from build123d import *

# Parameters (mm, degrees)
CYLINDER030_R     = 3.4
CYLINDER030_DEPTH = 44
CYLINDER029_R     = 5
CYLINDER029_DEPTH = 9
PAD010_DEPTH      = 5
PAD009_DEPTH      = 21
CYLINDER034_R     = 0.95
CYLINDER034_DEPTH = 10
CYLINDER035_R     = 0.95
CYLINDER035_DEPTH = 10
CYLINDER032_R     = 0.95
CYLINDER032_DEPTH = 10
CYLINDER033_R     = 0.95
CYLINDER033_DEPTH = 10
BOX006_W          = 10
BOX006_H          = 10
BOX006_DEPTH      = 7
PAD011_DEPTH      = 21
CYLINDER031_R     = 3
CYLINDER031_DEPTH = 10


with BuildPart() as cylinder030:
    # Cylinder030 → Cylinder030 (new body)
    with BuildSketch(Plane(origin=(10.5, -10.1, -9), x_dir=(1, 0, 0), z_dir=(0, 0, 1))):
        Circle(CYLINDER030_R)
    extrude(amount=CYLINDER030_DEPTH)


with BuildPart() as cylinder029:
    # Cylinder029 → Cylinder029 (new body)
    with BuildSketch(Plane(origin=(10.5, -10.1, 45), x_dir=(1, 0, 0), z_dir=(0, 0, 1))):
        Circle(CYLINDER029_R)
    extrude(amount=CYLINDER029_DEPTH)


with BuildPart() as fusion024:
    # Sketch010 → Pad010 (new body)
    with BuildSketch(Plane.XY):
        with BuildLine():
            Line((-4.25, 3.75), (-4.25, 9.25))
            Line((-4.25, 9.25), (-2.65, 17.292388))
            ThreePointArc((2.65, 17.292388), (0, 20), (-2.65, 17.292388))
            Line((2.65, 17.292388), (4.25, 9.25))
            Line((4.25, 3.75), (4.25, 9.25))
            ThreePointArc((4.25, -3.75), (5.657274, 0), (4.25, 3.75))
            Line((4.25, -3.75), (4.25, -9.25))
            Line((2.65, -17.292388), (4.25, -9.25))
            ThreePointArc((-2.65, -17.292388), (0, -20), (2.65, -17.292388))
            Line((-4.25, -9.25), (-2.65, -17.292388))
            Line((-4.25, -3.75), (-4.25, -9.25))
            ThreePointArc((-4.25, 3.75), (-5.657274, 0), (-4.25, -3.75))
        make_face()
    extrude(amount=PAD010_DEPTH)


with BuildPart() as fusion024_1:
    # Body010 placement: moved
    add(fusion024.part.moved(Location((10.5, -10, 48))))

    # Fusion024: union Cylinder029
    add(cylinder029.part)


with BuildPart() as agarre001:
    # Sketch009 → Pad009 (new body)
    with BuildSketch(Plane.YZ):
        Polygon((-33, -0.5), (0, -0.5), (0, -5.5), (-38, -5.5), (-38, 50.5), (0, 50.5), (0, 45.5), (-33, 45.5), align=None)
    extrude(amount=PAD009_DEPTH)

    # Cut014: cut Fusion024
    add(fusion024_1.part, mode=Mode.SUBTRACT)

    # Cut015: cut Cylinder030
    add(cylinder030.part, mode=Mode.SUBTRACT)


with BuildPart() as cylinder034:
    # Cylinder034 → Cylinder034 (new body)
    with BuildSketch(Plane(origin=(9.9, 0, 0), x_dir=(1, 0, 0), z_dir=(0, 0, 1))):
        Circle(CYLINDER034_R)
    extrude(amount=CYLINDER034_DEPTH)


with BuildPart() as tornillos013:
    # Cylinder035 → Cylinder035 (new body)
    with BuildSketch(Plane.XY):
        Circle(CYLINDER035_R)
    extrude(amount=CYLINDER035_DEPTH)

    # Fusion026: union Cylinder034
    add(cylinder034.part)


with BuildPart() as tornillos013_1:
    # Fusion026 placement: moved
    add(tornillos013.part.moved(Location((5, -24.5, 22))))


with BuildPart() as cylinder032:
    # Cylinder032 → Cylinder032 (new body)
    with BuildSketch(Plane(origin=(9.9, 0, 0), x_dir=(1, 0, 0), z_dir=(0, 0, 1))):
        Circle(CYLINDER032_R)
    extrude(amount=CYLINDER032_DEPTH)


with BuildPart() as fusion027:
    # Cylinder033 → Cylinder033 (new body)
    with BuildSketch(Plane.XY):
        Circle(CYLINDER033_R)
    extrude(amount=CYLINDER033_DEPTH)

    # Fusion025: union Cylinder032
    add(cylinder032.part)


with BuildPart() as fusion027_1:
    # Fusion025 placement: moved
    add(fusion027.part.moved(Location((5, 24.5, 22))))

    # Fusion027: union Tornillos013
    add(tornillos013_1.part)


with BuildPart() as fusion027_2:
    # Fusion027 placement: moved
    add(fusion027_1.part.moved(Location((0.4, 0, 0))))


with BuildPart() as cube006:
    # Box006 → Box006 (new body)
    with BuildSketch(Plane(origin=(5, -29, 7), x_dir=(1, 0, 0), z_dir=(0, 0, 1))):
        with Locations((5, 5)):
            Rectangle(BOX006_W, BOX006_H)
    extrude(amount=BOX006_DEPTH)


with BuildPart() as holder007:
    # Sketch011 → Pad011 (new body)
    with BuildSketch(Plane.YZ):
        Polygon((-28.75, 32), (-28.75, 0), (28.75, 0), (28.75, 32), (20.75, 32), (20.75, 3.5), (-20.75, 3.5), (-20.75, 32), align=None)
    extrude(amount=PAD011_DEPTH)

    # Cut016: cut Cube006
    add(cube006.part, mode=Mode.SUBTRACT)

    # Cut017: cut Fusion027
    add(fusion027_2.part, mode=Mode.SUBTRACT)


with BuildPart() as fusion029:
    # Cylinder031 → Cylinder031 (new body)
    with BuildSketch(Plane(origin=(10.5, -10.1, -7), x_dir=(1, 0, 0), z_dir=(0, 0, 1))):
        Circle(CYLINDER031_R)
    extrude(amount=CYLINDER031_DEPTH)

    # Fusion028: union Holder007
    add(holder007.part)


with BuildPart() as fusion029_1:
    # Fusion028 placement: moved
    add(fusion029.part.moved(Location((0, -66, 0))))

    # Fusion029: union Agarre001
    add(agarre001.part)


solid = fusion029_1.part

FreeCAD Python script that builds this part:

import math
import FreeCAD as App
import Part
import Sketcher


def add_polygon(sketch, points):
    """Adds a closed chain of lines whose ends are joined by coincident constraints."""
    first, n = sketch.GeometryCount, len(points)
    for a, b in zip(points, points[1:] + points[:1]):
        sketch.addGeometry(Part.LineSegment(App.Vector(*a, 0), App.Vector(*b, 0)), False)
    for i in range(n):
        sketch.addConstraint(Sketcher.Constraint("Coincident", first + i, 2, first + (i + 1) % n, 1))

doc = App.newDocument("Part")
params = doc.addObject("Spreadsheet::Sheet", "Params")
for row, (alias, value) in enumerate([
    ("sketch1_diameter", "6.8 mm"),
    ("pad1_length", "44 mm"),
    ("sketch2_diameter", "10 mm"),
    ("pad2_length", "9 mm"),
    ("sketch3_radius", "5.699999 mm"),
    ("sketch3_height", "5.5 mm"),
    ("sketch3_length", "8.2 mm"),
    ("pad3_length", "5 mm"),
    ("sketch4_width", "33 mm"),
    ("sketch4_width2", "38 mm"),
    ("sketch4_height", "46 mm"),
    ("sketch4_height2", "5 mm"),
    ("pad4_length", "21 mm"),
    ("sketch5_diameter", "1.9 mm"),
    ("pad5_length", "10 mm"),
    ("sketch6_diameter", "1.9 mm"),
    ("pad6_length", "10 mm"),
    ("sketch7_diameter", "1.9 mm"),
    ("pad7_length", "10 mm"),
    ("sketch8_diameter", "1.9 mm"),
    ("pad8_length", "10 mm"),
    ("sketch9_width", "10 mm"),
    ("pad9_length", "7 mm"),
    ("sketch10_width", "8 mm"),
    ("sketch10_height", "32 mm"),
    ("sketch10_width2", "57.5 mm"),
    ("sketch10_height2", "28.5 mm"),
    ("pad10_length", "21 mm"),
    ("sketch11_diameter", "6 mm"),
    ("pad11_length", "10 mm"),
], start=1):
    params.set(f"A{row}", alias)
    params.set(f"B{row}", "=" + value)
    params.setAlias(f"B{row}", alias)

body = doc.addObject("PartDesign::Body", "Body")

# Sketch on XY plane
sketch1 = body.newObject("Sketcher::SketchObject", "Sketch")
sketch1.AttachmentSupport = (doc.getObject("XY_Plane"), [""])
sketch1.MapMode = "FlatFace"
sketch1.AttachmentOffset = App.Placement(App.Vector(0, 0, -9), App.Rotation())
sketch1.addGeometry(Part.Circle(App.Vector(10.5, -10.1, 0), App.Vector(0, 0, 1), 3.4), False)
sketch1.addConstraint(Sketcher.Constraint("Diameter", 0, 6.8))
sketch1.addConstraint(Sketcher.Constraint("DistanceX", -1, 1, 0, 3, 10.5))
sketch1.addConstraint(Sketcher.Constraint("DistanceY", 0, 3, -1, 1, 10.1))
sketch1.setExpression("Constraints[0]", "Params.sketch1_diameter")
pad1 = body.newObject("PartDesign::Pad", "Pad")
pad1.Profile = sketch1
pad1.setExpression("Length", "Params.pad1_length")
body2 = doc.addObject("PartDesign::Body", "Body001")

# Sketch on XY plane
sketch2 = body2.newObject("Sketcher::SketchObject", "Sketch001")
sketch2.AttachmentSupport = (doc.getObject("XY_Plane001"), [""])
sketch2.MapMode = "FlatFace"
sketch2.AttachmentOffset = App.Placement(App.Vector(0, 0, 45), App.Rotation())
sketch2.addGeometry(Part.Circle(App.Vector(10, -10, 0), App.Vector(0, 0, 1), 5), False)
sketch2.addConstraint(Sketcher.Constraint("Diameter", 0, 10.0))
sketch2.addConstraint(Sketcher.Constraint("DistanceX", -1, 1, 0, 3, 10.5))
sketch2.addConstraint(Sketcher.Constraint("DistanceY", 0, 3, -1, 1, 10.1))
sketch2.setExpression("Constraints[0]", "Params.sketch2_diameter")
pad2 = body2.newObject("PartDesign::Pad", "Pad001")
pad2.Profile = sketch2
pad2.setExpression("Length", "Params.pad2_length")
body3 = doc.addObject("PartDesign::Body", "Body002")

# Sketch on XY plane
sketch3 = body3.newObject("Sketcher::SketchObject", "Sketch002")
sketch3.AttachmentSupport = (doc.getObject("XY_Plane002"), [""])
sketch3.MapMode = "FlatFace"
sketch3.addGeometry(Part.LineSegment(App.Vector(-4.2, 9.2, 0), App.Vector(-4.2, 3.8, 0)), False)
sketch3.addGeometry(Part.ArcOfCircle(Part.Circle(App.Vector(0, 0, 0), App.Vector(0, 0, 1), 5.7), math.radians(139), math.radians(221)), False)
sketch3.addGeometry(Part.LineSegment(App.Vector(-4.2, -3.8, 0), App.Vector(-4.2, -9.2, 0)), False)
sketch3.addGeometry(Part.LineSegment(App.Vector(-4.2, -9.2, 0), App.Vector(-2.6, -17.3, 0)), False)
sketch3.addGeometry(Part.ArcOfCircle(Part.Circle(App.Vector(0, -17.3, 0), App.Vector(0, 0, 1), 2.7), math.radians(179), math.radians(361)), False)
sketch3.addGeometry(Part.LineSegment(App.Vector(2.6, -17.3, 0), App.Vector(4.2, -9.2, 0)), False)
sketch3.addGeometry(Part.LineSegment(App.Vector(4.2, -9.2, 0), App.Vector(4.2, -3.8, 0)), False)
sketch3.addGeometry(Part.ArcOfCircle(Part.Circle(App.Vector(0, 0, 0), App.Vector(0, 0, 1), 5.7), math.radians(-41), math.radians(41)), False)
sketch3.addGeometry(Part.LineSegment(App.Vector(4.2, 3.8, 0), App.Vector(4.2, 9.2, 0)), False)
sketch3.addGeometry(Part.LineSegment(App.Vector(4.2, 9.2, 0), App.Vector(2.6, 17.3, 0)), False)
sketch3.addGeometry(Part.ArcOfCircle(Part.Circle(App.Vector(0, 17.3, 0), App.Vector(0, 0, 1), 2.7), math.radians(-1), math.radians(181)), False)
sketch3.addGeometry(Part.LineSegment(App.Vector(-2.6, 17.3, 0), App.Vector(-4.2, 9.2, 0)), False)
sketch3.addConstraint(Sketcher.Constraint("Coincident", 0, 2, 1, 1))
sketch3.addConstraint(Sketcher.Constraint("Coincident", 1, 2, 2, 1))
sketch3.addConstraint(Sketcher.Constraint("Coincident", 2, 2, 3, 1))
sketch3.addConstraint(Sketcher.Constraint("Coincident", 3, 2, 4, 1))
sketch3.addConstraint(Sketcher.Constraint("Coincident", 4, 2, 5, 1))
sketch3.addConstraint(Sketcher.Constraint("Coincident", 5, 2, 6, 1))
sketch3.addConstraint(Sketcher.Constraint("Coincident", 6, 2, 7, 1))
sketch3.addConstraint(Sketcher.Constraint("Coincident", 7, 2, 8, 1))
sketch3.addConstraint(Sketcher.Constraint("Coincident", 8, 2, 9, 1))
sketch3.addConstraint(Sketcher.Constraint("Coincident", 9, 2, 10, 1))
sketch3.addConstraint(Sketcher.Constraint("Coincident", 10, 2, 11, 1))
sketch3.addConstraint(Sketcher.Constraint("Coincident", 11, 2, 0, 1))
sketch3.addConstraint(Sketcher.Constraint("Vertical", 0))
sketch3.addConstraint(Sketcher.Constraint("Vertical", 2))
sketch3.addConstraint(Sketcher.Constraint("Vertical", 6))
sketch3.addConstraint(Sketcher.Constraint("Vertical", 8))
sketch3.addConstraint(Sketcher.Constraint("Equal", 1, 7))
sketch3.addConstraint(Sketcher.Constraint("Equal", 4, 10))
sketch3.addConstraint(Sketcher.Constraint("Symmetric", 1, 3, 7, 3, -1, 1))
sketch3.addConstraint(Sketcher.Constraint("Symmetric", 4, 3, 10, 3, -1, 1))
sketch3.addConstraint(Sketcher.Constraint("Symmetric", 2, 2, 8, 2, -1, 1))
sketch3.addConstraint(Sketcher.Constraint("Symmetric", 5, 2, 11, 2, -1, 1))
sketch3.addConstraint(Sketcher.Constraint("Symmetric", 3, 2, 4, 2, -2))
sketch3.addConstraint(Sketcher.Constraint("Symmetric", 2, 2, 5, 2, -2))
sketch3.addConstraint(Sketcher.Constraint("PointOnObject", 1, 3, -1))
sketch3.addConstraint(Sketcher.Constraint("Parallel", 3, 9))
sketch3.addConstraint(Sketcher.Constraint("Parallel", 5, 11))
sketch3.addConstraint(Sketcher.Constraint("Radius", 1, 5.699999))
sketch3.addConstraint(Sketcher.Constraint("DistanceY", 0, 2, 0, 1, 5.5))
sketch3.addConstraint(Sketcher.Constraint("DistanceY", 2, 2, 0, 2, 13.0))
sketch3.addConstraint(Sketcher.Constraint("Distance", 3, 8.2))
sketch3.addConstraint(Sketcher.Constraint("DistanceX", 2, 2, 3, 2, 1.6))
sketch3.addConstraint(Sketcher.Constraint("DistanceX", 3, 2, 4, 2, 5.3))
sketch3.addConstraint(Sketcher.Constraint("Radius", 4, 2.650613))
sketch3.setExpression("Constraints[27]", "Params.sketch3_radius")
sketch3.setExpression("Constraints[28]", "Params.sketch3_height")
sketch3.setExpression("Constraints[30]", "Params.sketch3_length")
pad3 = body3.newObject("PartDesign::Pad", "Pad002")
pad3.Profile = sketch3
pad3.setExpression("Length", "Params.pad3_length")
body4 = doc.addObject("PartDesign::Body", "Body003")
doc.recompute()

body3.Placement = App.Placement(App.Vector(10.5, -10, 48), App.Rotation(App.Vector(0, 0, 1), 0))
boolean = body4.newObject("PartDesign::Boolean", "Boolean")
boolean.Type = "Fuse"
boolean.addObjects([body3])
doc.recompute()

boolean2 = body4.newObject("PartDesign::Boolean", "Boolean001")
boolean2.Type = "Fuse"
boolean2.addObjects([body2])
body5 = doc.addObject("PartDesign::Body", "Body004")

# Sketch on YZ plane
sketch4 = body5.newObject("Sketcher::SketchObject", "Sketch003")
sketch4.AttachmentSupport = (doc.getObject("YZ_Plane004"), [""])
sketch4.MapMode = "FlatFace"
add_polygon(sketch4, [(0, 0), (-33, 0), (-33, 46), (0, 46), (0, 50), (-38, 50), (-38, -6), (0, -6)])  # lines 0-7
sketch4.addConstraint(Sketcher.Constraint("Horizontal", 0))
sketch4.addConstraint(Sketcher.Constraint("Vertical", 1))
sketch4.addConstraint(Sketcher.Constraint("Horizontal", 2))
sketch4.addConstraint(Sketcher.Constraint("Vertical", 3))
sketch4.addConstraint(Sketcher.Constraint("Horizontal", 4))
sketch4.addConstraint(Sketcher.Constraint("Vertical", 5))
sketch4.addConstraint(Sketcher.Constraint("Horizontal", 6))
sketch4.addConstraint(Sketcher.Constraint("Vertical", 7))
sketch4.addConstraint(Sketcher.Constraint("PointOnObject", 2, 2, -2))
sketch4.addConstraint(Sketcher.Constraint("PointOnObject", 6, 2, -2))
sketch4.addConstraint(Sketcher.Constraint("Equal", 3, 7))
sketch4.addConstraint(Sketcher.Constraint("DistanceX", 0, 2, 0, 1, 33.0))
sketch4.addConstraint(Sketcher.Constraint("DistanceX", 4, 2, 4, 1, 38.0))
sketch4.addConstraint(Sketcher.Constraint("DistanceY", 1, 1, 1, 2, 46.0))
sketch4.addConstraint(Sketcher.Constraint("DistanceY", 3, 1, 3, 2, 5.0))
sketch4.addConstraint(Sketcher.Constraint("DistanceY", 0, 2, -1, 1, 0.5))
sketch4.setExpression("Constraints[19]", "Params.sketch4_width")
sketch4.setExpression("Constraints[20]", "Params.sketch4_width2")
sketch4.setExpression("Constraints[21]", "Params.sketch4_height")
sketch4.setExpression("Constraints[22]", "Params.sketch4_height2")
pad4 = body5.newObject("PartDesign::Pad", "Pad003")
pad4.Profile = sketch4
pad4.setExpression("Length", "Params.pad4_length")
doc.recompute()

boolean3 = body5.newObject("PartDesign::Boolean", "Boolean002")
boolean3.Type = "Cut"
boolean3.addObjects([body4])
doc.recompute()

boolean4 = body5.newObject("PartDesign::Boolean", "Boolean003")
boolean4.Type = "Cut"
boolean4.addObjects([body])
body6 = doc.addObject("PartDesign::Body", "Body005")

# Sketch on XY plane
sketch5 = body6.newObject("Sketcher::SketchObject", "Sketch004")
sketch5.AttachmentSupport = (doc.getObject("XY_Plane005"), [""])
sketch5.MapMode = "FlatFace"
sketch5.addGeometry(Part.Circle(App.Vector(9.9, 0, 0), App.Vector(0, 0, 1), 0.9), False)
sketch5.addConstraint(Sketcher.Constraint("PointOnObject", 0, 3, -1))
sketch5.addConstraint(Sketcher.Constraint("Diameter", 0, 1.9))
sketch5.addConstraint(Sketcher.Constraint("DistanceX", -1, 1, 0, 3, 9.9))
sketch5.setExpression("Constraints[1]", "Params.sketch5_diameter")
pad5 = body6.newObject("PartDesign::Pad", "Pad004")
pad5.Profile = sketch5
pad5.setExpression("Length", "Params.pad5_length")
body7 = doc.addObject("PartDesign::Body", "Body006")
body7.AllowCompound = True

# Sketch on XY plane
sketch6 = body7.newObject("Sketcher::SketchObject", "Sketch005")
sketch6.AttachmentSupport = (doc.getObject("XY_Plane006"), [""])
sketch6.MapMode = "FlatFace"
sketch6.addGeometry(Part.Circle(App.Vector(0, 0, 0), App.Vector(0, 0, 1), 0.9), False)
sketch6.addConstraint(Sketcher.Constraint("Coincident", 0, 3, -1, 1))
sketch6.addConstraint(Sketcher.Constraint("Diameter", 0, 1.9))
sketch6.setExpression("Constraints[1]", "Params.sketch6_diameter")
pad6 = body7.newObject("PartDesign::Pad", "Pad005")
pad6.Profile = sketch6
pad6.setExpression("Length", "Params.pad6_length")
doc.recompute()

boolean5 = body7.newObject("PartDesign::Boolean", "Boolean004")
boolean5.Type = "Fuse"
boolean5.addObjects([body6])
body8 = doc.addObject("PartDesign::Body", "Body007")
body8.AllowCompound = True
doc.recompute()

body7.Placement = App.Placement(App.Vector(5, -24.5, 22), App.Rotation(App.Vector(0, 0, 1), 0))
boolean6 = body8.newObject("PartDesign::Boolean", "Boolean005")
boolean6.Type = "Fuse"
boolean6.addObjects([body7])
body9 = doc.addObject("PartDesign::Body", "Body008")

# Sketch on XY plane
sketch7 = body9.newObject("Sketcher::SketchObject", "Sketch006")
sketch7.AttachmentSupport = (doc.getObject("XY_Plane008"), [""])
sketch7.MapMode = "FlatFace"
sketch7.addGeometry(Part.Circle(App.Vector(9.9, 0, 0), App.Vector(0, 0, 1), 0.9), False)
sketch7.addConstraint(Sketcher.Constraint("PointOnObject", 0, 3, -1))
sketch7.addConstraint(Sketcher.Constraint("Diameter", 0, 1.9))
sketch7.addConstraint(Sketcher.Constraint("DistanceX", -1, 1, 0, 3, 9.9))
sketch7.setExpression("Constraints[1]", "Params.sketch7_diameter")
pad7 = body9.newObject("PartDesign::Pad", "Pad006")
pad7.Profile = sketch7
pad7.setExpression("Length", "Params.pad7_length")
body10 = doc.addObject("PartDesign::Body", "Body009")
body10.AllowCompound = True

# Sketch on XY plane
sketch8 = body10.newObject("Sketcher::SketchObject", "Sketch007")
sketch8.AttachmentSupport = (doc.getObject("XY_Plane009"), [""])
sketch8.MapMode = "FlatFace"
sketch8.addGeometry(Part.Circle(App.Vector(0, 0, 0), App.Vector(0, 0, 1), 0.9), False)
sketch8.addConstraint(Sketcher.Constraint("Coincident", 0, 3, -1, 1))
sketch8.addConstraint(Sketcher.Constraint("Diameter", 0, 1.9))
sketch8.setExpression("Constraints[1]", "Params.sketch8_diameter")
pad8 = body10.newObject("PartDesign::Pad", "Pad007")
pad8.Profile = sketch8
pad8.setExpression("Length", "Params.pad8_length")
doc.recompute()

boolean7 = body10.newObject("PartDesign::Boolean", "Boolean006")
boolean7.Type = "Fuse"
boolean7.addObjects([body9])
body11 = doc.addObject("PartDesign::Body", "Body010")
body11.AllowCompound = True
doc.recompute()

body10.Placement = App.Placement(App.Vector(5, 24.5, 22), App.Rotation(App.Vector(0, 0, 1), 0))
boolean8 = body11.newObject("PartDesign::Boolean", "Boolean007")
boolean8.Type = "Fuse"
boolean8.addObjects([body10])
doc.recompute()

boolean9 = body11.newObject("PartDesign::Boolean", "Boolean008")
boolean9.Type = "Fuse"
boolean9.addObjects([body8])
body12 = doc.addObject("PartDesign::Body", "Body011")
body12.AllowCompound = True
doc.recompute()

body11.Placement = App.Placement(App.Vector(0.4, 0, 0), App.Rotation(App.Vector(0, 0, 1), 0))
boolean10 = body12.newObject("PartDesign::Boolean", "Boolean009")
boolean10.Type = "Fuse"
boolean10.addObjects([body11])
body13 = doc.addObject("PartDesign::Body", "Body012")

# Sketch on XY plane
sketch9 = body13.newObject("Sketcher::SketchObject", "Sketch008")
sketch9.AttachmentSupport = (doc.getObject("XY_Plane012"), [""])
sketch9.MapMode = "FlatFace"
sketch9.AttachmentOffset = App.Placement(App.Vector(0, 0, 7), App.Rotation())
add_polygon(sketch9, [(5, -19), (5, -29), (15, -29), (15, -19)])  # lines 0-3
sketch9.addConstraint(Sketcher.Constraint("Vertical", 0))
sketch9.addConstraint(Sketcher.Constraint("Horizontal", 1))
sketch9.addConstraint(Sketcher.Constraint("Vertical", 2))
sketch9.addConstraint(Sketcher.Constraint("Horizontal", 3))
sketch9.addConstraint(Sketcher.Constraint("Equal", 3, 0))
sketch9.addConstraint(Sketcher.Constraint("DistanceX", 1, 1, 1, 2, 10.0))
sketch9.addConstraint(Sketcher.Constraint("DistanceX", -1, 1, 0, 2, 5.0))
sketch9.addConstraint(Sketcher.Constraint("DistanceY", 0, 2, -1, 1, 29.0))
sketch9.setExpression("Constraints[9]", "Params.sketch9_width")
pad9 = body13.newObject("PartDesign::Pad", "Pad008")
pad9.Profile = sketch9
pad9.setExpression("Length", "Params.pad9_length")
body14 = doc.addObject("PartDesign::Body", "Body013")

# Sketch on YZ plane
sketch10 = body14.newObject("Sketcher::SketchObject", "Sketch009")
sketch10.AttachmentSupport = (doc.getObject("YZ_Plane013"), [""])
sketch10.MapMode = "FlatFace"
add_polygon(sketch10, [(-29, 32), (-29, 0), (29, 0), (29, 32), (21, 32), (21, 4), (-21, 4), (-21, 32)])  # lines 0-7
sketch10.addConstraint(Sketcher.Constraint("Vertical", 0))
sketch10.addConstraint(Sketcher.Constraint("Horizontal", 1))
sketch10.addConstraint(Sketcher.Constraint("Vertical", 2))
sketch10.addConstraint(Sketcher.Constraint("Horizontal", 3))
sketch10.addConstraint(Sketcher.Constraint("Vertical", 4))
sketch10.addConstraint(Sketcher.Constraint("Horizontal", 5))
sketch10.addConstraint(Sketcher.Constraint("Vertical", 6))
sketch10.addConstraint(Sketcher.Constraint("Horizontal", 7))
sketch10.addConstraint(Sketcher.Constraint("Symmetric", 0, 2, 1, 2, -1, 1))
sketch10.addConstraint(Sketcher.Constraint("Symmetric", 3, 2, 6, 2, -2))
sketch10.addConstraint(Sketcher.Constraint("DistanceX", 3, 2, 3, 1, 8.0))
sketch10.addConstraint(Sketcher.Constraint("DistanceY", 0, 2, 0, 1, 32.0))
sketch10.addConstraint(Sketcher.Constraint("DistanceX", 1, 1, 1, 2, 57.5))
sketch10.addConstraint(Sketcher.Constraint("DistanceY", 4, 2, 4, 1, 28.5))
sketch10.setExpression("Constraints[18]", "Params.sketch10_width")
sketch10.setExpression("Constraints[19]", "Params.sketch10_height")
sketch10.setExpression("Constraints[20]", "Params.sketch10_width2")
sketch10.setExpression("Constraints[21]", "Params.sketch10_height2")
pad10 = body14.newObject("PartDesign::Pad", "Pad009")
pad10.Profile = sketch10
pad10.setExpression("Length", "Params.pad10_length")
doc.recompute()

boolean11 = body14.newObject("PartDesign::Boolean", "Boolean010")
boolean11.Type = "Cut"
boolean11.addObjects([body13])
doc.recompute()

boolean12 = body14.newObject("PartDesign::Boolean", "Boolean011")
boolean12.Type = "Cut"
boolean12.addObjects([body12])
body15 = doc.addObject("PartDesign::Body", "Body014")

# Sketch on XY plane
sketch11 = body15.newObject("Sketcher::SketchObject", "Sketch010")
sketch11.AttachmentSupport = (doc.getObject("XY_Plane014"), [""])
sketch11.MapMode = "FlatFace"
sketch11.AttachmentOffset = App.Placement(App.Vector(0, 0, -7), App.Rotation())
sketch11.addGeometry(Part.Circle(App.Vector(10.5, -10.1, 0), App.Vector(0, 0, 1), 3), False)
sketch11.addConstraint(Sketcher.Constraint("Diameter", 0, 6.0))
sketch11.addConstraint(Sketcher.Constraint("DistanceX", -1, 1, 0, 3, 10.5))
sketch11.addConstraint(Sketcher.Constraint("DistanceY", 0, 3, -1, 1, 10.1))
sketch11.setExpression("Constraints[0]", "Params.sketch11_diameter")
pad11 = body15.newObject("PartDesign::Pad", "Pad010")
pad11.Profile = sketch11
pad11.setExpression("Length", "Params.pad11_length")
doc.recompute()

boolean13 = body15.newObject("PartDesign::Boolean", "Boolean012")
boolean13.Type = "Fuse"
boolean13.addObjects([body14])
body16 = doc.addObject("PartDesign::Body", "Body015")
doc.recompute()

body15.Placement = App.Placement(App.Vector(0, -66, 0), App.Rotation(App.Vector(0, 0, 1), 0))
boolean14 = body16.newObject("PartDesign::Boolean", "Boolean013")
boolean14.Type = "Fuse"
boolean14.addObjects([body15])
doc.recompute()

boolean15 = body16.newObject("PartDesign::Boolean", "Boolean014")
boolean15.Type = "Fuse"
boolean15.addObjects([body5])

doc.recompute()
